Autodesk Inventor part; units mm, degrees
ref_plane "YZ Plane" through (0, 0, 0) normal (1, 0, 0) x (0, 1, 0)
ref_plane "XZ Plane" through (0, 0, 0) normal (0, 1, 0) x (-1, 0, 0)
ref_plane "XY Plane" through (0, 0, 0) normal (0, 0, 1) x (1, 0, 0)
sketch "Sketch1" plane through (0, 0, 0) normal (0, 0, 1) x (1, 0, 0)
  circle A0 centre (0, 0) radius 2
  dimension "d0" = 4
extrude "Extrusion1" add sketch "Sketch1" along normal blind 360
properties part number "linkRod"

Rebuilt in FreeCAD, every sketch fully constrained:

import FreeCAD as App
import Part
import Sketcher
Q = App.Units.Quantity

doc = App.newDocument("Part")
body = doc.addObject("PartDesign::Body", "Body")

sketch1 = body.newObject("Sketcher::SketchObject", "Sketch")
sketch1.AttachmentSupport = (doc.getObject("XY_Plane"), [""])
sketch1.MapMode = "FlatFace"
sketch1.addGeometry(Part.Circle(App.Vector(0, 0, 0), App.Vector(0, 0, 1), 2), False)
sketch1.addConstraint([
    Sketcher.Constraint("Coincident", 0, 3, -1, 1),
    Sketcher.Constraint("Diameter", 0, Q("4 mm")),
])
pad1 = body.newObject("PartDesign::Pad", "Pad")
pad1.Profile = sketch1
pad1.Length = 360

doc.recompute()
